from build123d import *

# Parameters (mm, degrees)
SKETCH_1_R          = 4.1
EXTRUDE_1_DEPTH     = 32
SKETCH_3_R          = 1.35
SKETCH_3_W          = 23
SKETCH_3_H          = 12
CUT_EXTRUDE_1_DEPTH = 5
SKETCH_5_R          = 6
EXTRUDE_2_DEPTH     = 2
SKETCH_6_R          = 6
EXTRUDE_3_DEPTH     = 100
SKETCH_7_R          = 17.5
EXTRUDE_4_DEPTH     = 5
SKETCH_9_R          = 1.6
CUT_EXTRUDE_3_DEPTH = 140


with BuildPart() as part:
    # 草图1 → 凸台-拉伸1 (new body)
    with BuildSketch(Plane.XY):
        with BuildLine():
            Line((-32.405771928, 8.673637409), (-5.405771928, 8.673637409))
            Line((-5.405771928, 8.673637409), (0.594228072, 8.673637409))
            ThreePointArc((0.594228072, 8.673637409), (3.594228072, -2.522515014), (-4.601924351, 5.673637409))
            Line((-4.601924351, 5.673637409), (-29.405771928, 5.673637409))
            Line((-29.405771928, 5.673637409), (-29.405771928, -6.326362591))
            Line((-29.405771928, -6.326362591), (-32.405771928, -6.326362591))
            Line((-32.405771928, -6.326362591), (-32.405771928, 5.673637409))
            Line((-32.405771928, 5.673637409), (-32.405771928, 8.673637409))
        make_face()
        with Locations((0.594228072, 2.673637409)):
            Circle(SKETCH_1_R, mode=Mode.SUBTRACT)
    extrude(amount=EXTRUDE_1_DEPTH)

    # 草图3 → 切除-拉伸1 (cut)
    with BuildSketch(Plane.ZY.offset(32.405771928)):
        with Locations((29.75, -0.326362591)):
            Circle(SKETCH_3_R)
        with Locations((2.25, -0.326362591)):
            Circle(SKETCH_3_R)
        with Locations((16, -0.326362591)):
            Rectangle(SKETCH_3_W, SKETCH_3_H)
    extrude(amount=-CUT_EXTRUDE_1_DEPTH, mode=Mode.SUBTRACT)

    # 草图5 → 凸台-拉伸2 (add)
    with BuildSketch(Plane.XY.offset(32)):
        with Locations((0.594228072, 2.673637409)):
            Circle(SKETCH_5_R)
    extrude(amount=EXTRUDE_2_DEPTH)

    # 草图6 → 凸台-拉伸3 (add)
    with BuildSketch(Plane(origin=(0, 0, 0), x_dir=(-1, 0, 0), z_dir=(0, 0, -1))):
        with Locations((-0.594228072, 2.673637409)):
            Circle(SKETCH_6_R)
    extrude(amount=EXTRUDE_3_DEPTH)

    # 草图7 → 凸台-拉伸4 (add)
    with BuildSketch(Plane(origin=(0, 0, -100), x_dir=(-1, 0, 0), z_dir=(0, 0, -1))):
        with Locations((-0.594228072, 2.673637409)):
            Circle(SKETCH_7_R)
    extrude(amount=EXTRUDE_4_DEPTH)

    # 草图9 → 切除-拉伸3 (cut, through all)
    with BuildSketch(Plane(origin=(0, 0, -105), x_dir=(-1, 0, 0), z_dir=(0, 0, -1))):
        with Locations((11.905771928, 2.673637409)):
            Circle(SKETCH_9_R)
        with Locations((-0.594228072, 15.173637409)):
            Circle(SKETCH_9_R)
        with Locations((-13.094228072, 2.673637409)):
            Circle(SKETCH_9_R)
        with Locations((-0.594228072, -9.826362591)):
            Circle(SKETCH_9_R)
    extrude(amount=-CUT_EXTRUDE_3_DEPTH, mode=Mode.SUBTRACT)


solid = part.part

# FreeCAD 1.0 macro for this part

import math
import FreeCAD as App
import Part
import Sketcher

V = App.Vector

doc = App.newDocument("Part")
body = doc.addObject("PartDesign::Body", "Body")

# Sketch on XY plane
sketch1 = body.newObject("Sketcher::SketchObject", "Sketch")
sketch1.AttachmentSupport = (doc.getObject("XY_Plane"), [""])
sketch1.MapMode = "FlatFace"
sketch1.addGeometry(Part.LineSegment(V(0.594228, 8.673637, 0), V(-32.405772, 8.673637, 0)), False)
sketch1.addGeometry(Part.LineSegment(V(-32.405772, 8.673637, 0), V(-32.405772, -6.326363, 0)), False)
sketch1.addGeometry(Part.LineSegment(V(-32.405772, -6.326363, 0), V(-29.405772, -6.326363, 0)), False)
sketch1.addGeometry(Part.LineSegment(V(-29.405772, -6.326363, 0), V(-29.405772, 5.673637, 0)), False)
sketch1.addGeometry(Part.LineSegment(V(-29.405772, 5.673637, 0), V(-4.601924, 5.673637, 0)), False)
sketch1.addGeometry(Part.ArcOfCircle(Part.Circle(V(0.594228, 2.673637, 0), V(0, 0, 1), 6), math.radians(150), math.radians(450)), False)
sketch1.addGeometry(Part.Circle(V(0.594228, 2.673637, 0), V(0, 0, 1), 4.1), False)
sketch1.addConstraint(Sketcher.Constraint("Coincident", 0, 2, 1, 1))
sketch1.addConstraint(Sketcher.Constraint("Coincident", 1, 2, 2, 1))
sketch1.addConstraint(Sketcher.Constraint("Coincident", 2, 2, 3, 1))
sketch1.addConstraint(Sketcher.Constraint("Coincident", 3, 2, 4, 1))
sketch1.addConstraint(Sketcher.Constraint("Coincident", 4, 2, 5, 1))
sketch1.addConstraint(Sketcher.Constraint("Tangent", 5, 2, 0, 1))
sketch1.addConstraint(Sketcher.Constraint("Horizontal", 0))
sketch1.addConstraint(Sketcher.Constraint("Vertical", 1))
sketch1.addConstraint(Sketcher.Constraint("Horizontal", 2))
sketch1.addConstraint(Sketcher.Constraint("Vertical", 3))
sketch1.addConstraint(Sketcher.Constraint("Horizontal", 4))
sketch1.addConstraint(Sketcher.Constraint("Coincident", 6, 3, 5, 3))
sketch1.addConstraint(Sketcher.Constraint("Radius", 5, 6.0))
sketch1.addConstraint(Sketcher.Constraint("Diameter", 6, 8.2))
sketch1.addConstraint(Sketcher.Constraint("DistanceX", 0, 2, 0, 1, 33.0))
sketch1.addConstraint(Sketcher.Constraint("DistanceX", 2, 1, 2, 2, 3.0))
sketch1.addConstraint(Sketcher.Constraint("DistanceY", 1, 2, 1, 1, 15.0))
sketch1.addConstraint(Sketcher.Constraint("DistanceY", 3, 1, 3, 2, 12.0))
sketch1.addConstraint(Sketcher.Constraint("DistanceX", -1, 1, 5, 3, 0.594228))
sketch1.addConstraint(Sketcher.Constraint("DistanceY", -1, 1, 5, 3, 2.673637))
pad1 = body.newObject("PartDesign::Pad", "Pad")
pad1.Profile = sketch1
pad1.Length = 32

# Sketch on YZ plane
sketch2 = body.newObject("Sketcher::SketchObject", "Sketch001")
sketch2.AttachmentSupport = (doc.getObject("YZ_Plane"), [""])
sketch2.MapMode = "FlatFace"
sketch2.AttachmentOffset = App.Placement(V(0, 0, -32.405772), App.Rotation())
sketch2.addGeometry(Part.Circle(V(-0.326363, 29.75, 0), V(0, 0, 1), 1.35), False)
sketch2.addGeometry(Part.Circle(V(-0.326363, 2.25, 0), V(0, 0, 1), 1.35), False)
sketch2.addGeometry(Part.LineSegment(V(5.673637, 4.5, 0), V(-6.326363, 4.5, 0)), False)
sketch2.addGeometry(Part.LineSegment(V(-6.326363, 4.5, 0), V(-6.326363, 27.5, 0)), False)
sketch2.addGeometry(Part.LineSegment(V(-6.326363, 27.5, 0), V(5.673637, 27.5, 0)), False)
sketch2.addGeometry(Part.LineSegment(V(5.673637, 27.5, 0), V(5.673637, 4.5, 0)), False)
sketch2.addConstraint(Sketcher.Constraint("Coincident", 2, 2, 3, 1))
sketch2.addConstraint(Sketcher.Constraint("Coincident", 3, 2, 4, 1))
sketch2.addConstraint(Sketcher.Constraint("Coincident", 4, 2, 5, 1))
sketch2.addConstraint(Sketcher.Constraint("Coincident", 5, 2, 2, 1))
sketch2.addConstraint(Sketcher.Constraint("Horizontal", 2))
sketch2.addConstraint(Sketcher.Constraint("Vertical", 3))
sketch2.addConstraint(Sketcher.Constraint("Horizontal", 4))
sketch2.addConstraint(Sketcher.Constraint("Vertical", 5))
sketch2.addConstraint(Sketcher.Constraint("Equal", 0, 1))
sketch2.addConstraint(Sketcher.Constraint("Vertical", 0, 3, 1, 3))
sketch2.addConstraint(Sketcher.Constraint("Diameter", 0, 2.7))
sketch2.addConstraint(Sketcher.Constraint("DistanceX", 2, 2, 2, 1, 12.0))
sketch2.addConstraint(Sketcher.Constraint("DistanceY", 3, 1, 3, 2, 23.0))
sketch2.addConstraint(Sketcher.Constraint("DistanceX", 2, 2, 1, 3, 6.0))
sketch2.addConstraint(Sketcher.Constraint("DistanceY", -1, 1, 2, 2, 4.5))
sketch2.addConstraint(Sketcher.Constraint("DistanceY", 1, 3, 0, 3, 27.5))
sketch2.addConstraint(Sketcher.Constraint("DistanceY", -1, 1, 0, 3, 29.75))
sketch2.addConstraint(Sketcher.Constraint("DistanceX", 0, 3, -1, 1, 0.326363))
pocket1 = body.newObject("PartDesign::Pocket", "Pocket")
pocket1.Profile = sketch2
pocket1.Length = 5
pocket1.Reversed = True

# Sketch on XY plane
sketch3 = body.newObject("Sketcher::SketchObject", "Sketch002")
sketch3.AttachmentSupport = (doc.getObject("XY_Plane"), [""])
sketch3.MapMode = "FlatFace"
sketch3.AttachmentOffset = App.Placement(V(0, 0, 32), App.Rotation())
sketch3.addGeometry(Part.Circle(V(0.594228, 2.673637, 0), V(0, 0, 1), 6), False)
sketch3.addConstraint(Sketcher.Constraint("Diameter", 0, 12.0))
sketch3.addConstraint(Sketcher.Constraint("DistanceX", -1, 1, 0, 3, 0.594228))
sketch3.addConstraint(Sketcher.Constraint("DistanceY", -1, 1, 0, 3, 2.673637))
pad2 = body.newObject("PartDesign::Pad", "Pad001")
pad2.Profile = sketch3
pad2.Length = 2

# Sketch on XY plane
sketch4 = body.newObject("Sketcher::SketchObject", "Sketch003")
sketch4.AttachmentSupport = (doc.getObject("XY_Plane"), [""])
sketch4.MapMode = "FlatFace"
sketch4.addGeometry(Part.Circle(V(0.594228, 2.673637, 0), V(0, 0, 1), 6), False)
sketch4.addConstraint(Sketcher.Constraint("Diameter", 0, 12.0))
sketch4.addConstraint(Sketcher.Constraint("DistanceX", -1, 1, 0, 3, 0.594228))
sketch4.addConstraint(Sketcher.Constraint("DistanceY", -1, 1, 0, 3, 2.673637))
pad3 = body.newObject("PartDesign::Pad", "Pad002")
pad3.Profile = sketch4
pad3.Length = 100
pad3.Reversed = True

# Sketch on XY plane
sketch5 = body.newObject("Sketcher::SketchObject", "Sketch004")
sketch5.AttachmentSupport = (doc.getObject("XY_Plane"), [""])
sketch5.MapMode = "FlatFace"
sketch5.AttachmentOffset = App.Placement(V(0, 0, -100), App.Rotation())
sketch5.addGeometry(Part.Circle(V(0.594228, 2.673637, 0), V(0, 0, 1), 17.5), False)
sketch5.addConstraint(Sketcher.Constraint("Diameter", 0, 35.0))
sketch5.addConstraint(Sketcher.Constraint("DistanceX", -1, 1, 0, 3, 0.594228))
sketch5.addConstraint(Sketcher.Constraint("DistanceY", -1, 1, 0, 3, 2.673637))
pad4 = body.newObject("PartDesign::Pad", "Pad003")
pad4.Profile = sketch5
pad4.Length = 5
pad4.Reversed = True

# Sketch on XY plane
sketch6 = body.newObject("Sketcher::SketchObject", "Sketch005")
sketch6.AttachmentSupport = (doc.getObject("XY_Plane"), [""])
sketch6.MapMode = "FlatFace"
sketch6.AttachmentOffset = App.Placement(V(0, 0, -105), App.Rotation())
sketch6.addGeometry(Part.Circle(V(-11.905772, 2.673637, 0), V(0, 0, 1), 1.6), False)
sketch6.addGeometry(Part.Circle(V(0.594228, 15.173637, 0), V(0, 0, 1), 1.6), False)
sketch6.addGeometry(Part.Circle(V(13.094228, 2.673637, 0), V(0, 0, 1), 1.6), False)
sketch6.addGeometry(Part.Circle(V(0.594228, -9.826363, 0), V(0, 0, 1), 1.6), False)
sketch6.addConstraint(Sketcher.Constraint("Equal", 0, 1))
sketch6.addConstraint(Sketcher.Constraint("Equal", 1, 2))
sketch6.addConstraint(Sketcher.Constraint("Equal", 2, 3))
sketch6.addConstraint(Sketcher.Constraint("Horizontal", 0, 3, 2, 3))
sketch6.addConstraint(Sketcher.Constraint("Vertical", 1, 3, 3, 3))
sketch6.addConstraint(Sketcher.Constraint("Diameter", 0, 3.2))
sketch6.addConstraint(Sketcher.Constraint("DistanceX", 0, 3, 2, 3, 25.0))
sketch6.addConstraint(Sketcher.Constraint("DistanceY", 3, 3, 1, 3, 25.0))
sketch6.addConstraint(Sketcher.Constraint("DistanceX", 0, 3, 1, 3, 12.5))
sketch6.addConstraint(Sketcher.Constraint("DistanceY", 0, 3, 1, 3, 12.5))
sketch6.addConstraint(Sketcher.Constraint("DistanceX", 0, 3, -1, 1, 11.905772))
sketch6.addConstraint(Sketcher.Constraint("DistanceY", -1, 1, 0, 3, 2.673637))
pocket2 = body.newObject("PartDesign::Pocket", "Pocket001")
pocket2.Profile = sketch6
pocket2.Type = "ThroughAll"
pocket2.Reversed = True

doc.recompute()
